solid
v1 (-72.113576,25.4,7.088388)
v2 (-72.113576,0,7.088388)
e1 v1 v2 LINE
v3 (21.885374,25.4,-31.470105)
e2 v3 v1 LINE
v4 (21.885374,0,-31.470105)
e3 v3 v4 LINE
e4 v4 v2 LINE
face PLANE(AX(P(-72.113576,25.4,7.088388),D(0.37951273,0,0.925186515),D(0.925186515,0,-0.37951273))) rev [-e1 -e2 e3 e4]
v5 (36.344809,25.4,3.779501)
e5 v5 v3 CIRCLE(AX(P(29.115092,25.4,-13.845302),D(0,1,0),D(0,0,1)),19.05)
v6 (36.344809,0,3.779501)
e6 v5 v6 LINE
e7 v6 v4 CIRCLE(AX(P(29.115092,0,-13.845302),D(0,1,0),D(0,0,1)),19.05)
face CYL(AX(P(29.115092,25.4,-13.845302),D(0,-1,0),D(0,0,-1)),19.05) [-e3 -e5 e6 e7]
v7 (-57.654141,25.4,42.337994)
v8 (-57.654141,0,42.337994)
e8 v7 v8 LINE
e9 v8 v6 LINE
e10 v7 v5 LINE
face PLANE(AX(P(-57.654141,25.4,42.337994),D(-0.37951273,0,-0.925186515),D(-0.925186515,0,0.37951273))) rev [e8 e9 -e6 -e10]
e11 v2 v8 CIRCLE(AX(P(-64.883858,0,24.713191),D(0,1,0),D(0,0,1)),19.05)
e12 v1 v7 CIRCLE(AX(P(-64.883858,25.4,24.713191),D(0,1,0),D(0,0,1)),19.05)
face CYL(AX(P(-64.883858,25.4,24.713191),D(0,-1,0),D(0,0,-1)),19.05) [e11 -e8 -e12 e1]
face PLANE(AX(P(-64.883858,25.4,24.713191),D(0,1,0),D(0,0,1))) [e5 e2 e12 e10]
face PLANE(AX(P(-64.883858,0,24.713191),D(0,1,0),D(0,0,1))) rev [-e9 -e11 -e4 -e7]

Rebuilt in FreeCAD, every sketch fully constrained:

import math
import FreeCAD as App
import Part
import Sketcher
from FreeCAD import Vector
Q = App.Units.Quantity

doc = App.newDocument("Part")
params = doc.addObject("Spreadsheet::Sheet", "Params")
for row, (alias, value) in enumerate([
    ("sketch1_radius", "0.75 in"),
    ("sketch1_length", "4 in"),
    ("pad1_length", "1 in"),
], start=1):
    params.set(f"A{row}", alias)
    params.set(f"B{row}", "=" + value)
    params.setAlias(f"B{row}", alias)

body = doc.addObject("PartDesign::Body", "Body")

sketch1 = body.newObject("Sketcher::SketchObject", "Sketch")
sketch1.AttachmentSupport = (doc.getObject("XZ_Plane"), [""])
sketch1.MapMode = "FlatFace"
sketch1.addGeometry([
    Part.LineSegment(Vector(22, -31, 0), Vector(-72, 7, 0)),
    Part.ArcOfCircle(Part.Circle(Vector(-65, 25, 0), Vector(0, 0, 1), 19), math.radians(68), math.radians(248)),
    Part.LineSegment(Vector(-58, 42, 0), Vector(36, 4, 0)),
    Part.ArcOfCircle(Part.Circle(Vector(29, -14, 0), Vector(0, 0, 1), 19), math.radians(-112), math.radians(68)),
], False)
sketch1.addConstraint([
    Sketcher.Constraint("Tangent", 0, 2, 1, 2),
    Sketcher.Constraint("Tangent", 1, 1, 2, 1),
    Sketcher.Constraint("Tangent", 2, 2, 3, 2),
    Sketcher.Constraint("Tangent", 3, 1, 0, 1),
    Sketcher.Constraint("Equal", 1, 3),
    Sketcher.Constraint("Radius", 1, Q("0.75 in")),
    Sketcher.Constraint("Distance", 0, Q("4 in")),
    Sketcher.Constraint("DistanceY", -1, 1, 2, 2, 3.779501),
    Sketcher.Constraint("DistanceY", 3, 1, 1, 1, 73.8081),
    Sketcher.Constraint("DistanceX", 1, 3, -1, 1, 64.883858),
])
sketch1.setExpression("Constraints[5]", "Params.sketch1_radius")
sketch1.setExpression("Constraints[6]", "Params.sketch1_length")
pad1 = body.newObject("PartDesign::Pad", "Pad")
pad1.Profile = sketch1
pad1.setExpression("Length", "Params.pad1_length")
pad1.Reversed = True

doc.recompute()
